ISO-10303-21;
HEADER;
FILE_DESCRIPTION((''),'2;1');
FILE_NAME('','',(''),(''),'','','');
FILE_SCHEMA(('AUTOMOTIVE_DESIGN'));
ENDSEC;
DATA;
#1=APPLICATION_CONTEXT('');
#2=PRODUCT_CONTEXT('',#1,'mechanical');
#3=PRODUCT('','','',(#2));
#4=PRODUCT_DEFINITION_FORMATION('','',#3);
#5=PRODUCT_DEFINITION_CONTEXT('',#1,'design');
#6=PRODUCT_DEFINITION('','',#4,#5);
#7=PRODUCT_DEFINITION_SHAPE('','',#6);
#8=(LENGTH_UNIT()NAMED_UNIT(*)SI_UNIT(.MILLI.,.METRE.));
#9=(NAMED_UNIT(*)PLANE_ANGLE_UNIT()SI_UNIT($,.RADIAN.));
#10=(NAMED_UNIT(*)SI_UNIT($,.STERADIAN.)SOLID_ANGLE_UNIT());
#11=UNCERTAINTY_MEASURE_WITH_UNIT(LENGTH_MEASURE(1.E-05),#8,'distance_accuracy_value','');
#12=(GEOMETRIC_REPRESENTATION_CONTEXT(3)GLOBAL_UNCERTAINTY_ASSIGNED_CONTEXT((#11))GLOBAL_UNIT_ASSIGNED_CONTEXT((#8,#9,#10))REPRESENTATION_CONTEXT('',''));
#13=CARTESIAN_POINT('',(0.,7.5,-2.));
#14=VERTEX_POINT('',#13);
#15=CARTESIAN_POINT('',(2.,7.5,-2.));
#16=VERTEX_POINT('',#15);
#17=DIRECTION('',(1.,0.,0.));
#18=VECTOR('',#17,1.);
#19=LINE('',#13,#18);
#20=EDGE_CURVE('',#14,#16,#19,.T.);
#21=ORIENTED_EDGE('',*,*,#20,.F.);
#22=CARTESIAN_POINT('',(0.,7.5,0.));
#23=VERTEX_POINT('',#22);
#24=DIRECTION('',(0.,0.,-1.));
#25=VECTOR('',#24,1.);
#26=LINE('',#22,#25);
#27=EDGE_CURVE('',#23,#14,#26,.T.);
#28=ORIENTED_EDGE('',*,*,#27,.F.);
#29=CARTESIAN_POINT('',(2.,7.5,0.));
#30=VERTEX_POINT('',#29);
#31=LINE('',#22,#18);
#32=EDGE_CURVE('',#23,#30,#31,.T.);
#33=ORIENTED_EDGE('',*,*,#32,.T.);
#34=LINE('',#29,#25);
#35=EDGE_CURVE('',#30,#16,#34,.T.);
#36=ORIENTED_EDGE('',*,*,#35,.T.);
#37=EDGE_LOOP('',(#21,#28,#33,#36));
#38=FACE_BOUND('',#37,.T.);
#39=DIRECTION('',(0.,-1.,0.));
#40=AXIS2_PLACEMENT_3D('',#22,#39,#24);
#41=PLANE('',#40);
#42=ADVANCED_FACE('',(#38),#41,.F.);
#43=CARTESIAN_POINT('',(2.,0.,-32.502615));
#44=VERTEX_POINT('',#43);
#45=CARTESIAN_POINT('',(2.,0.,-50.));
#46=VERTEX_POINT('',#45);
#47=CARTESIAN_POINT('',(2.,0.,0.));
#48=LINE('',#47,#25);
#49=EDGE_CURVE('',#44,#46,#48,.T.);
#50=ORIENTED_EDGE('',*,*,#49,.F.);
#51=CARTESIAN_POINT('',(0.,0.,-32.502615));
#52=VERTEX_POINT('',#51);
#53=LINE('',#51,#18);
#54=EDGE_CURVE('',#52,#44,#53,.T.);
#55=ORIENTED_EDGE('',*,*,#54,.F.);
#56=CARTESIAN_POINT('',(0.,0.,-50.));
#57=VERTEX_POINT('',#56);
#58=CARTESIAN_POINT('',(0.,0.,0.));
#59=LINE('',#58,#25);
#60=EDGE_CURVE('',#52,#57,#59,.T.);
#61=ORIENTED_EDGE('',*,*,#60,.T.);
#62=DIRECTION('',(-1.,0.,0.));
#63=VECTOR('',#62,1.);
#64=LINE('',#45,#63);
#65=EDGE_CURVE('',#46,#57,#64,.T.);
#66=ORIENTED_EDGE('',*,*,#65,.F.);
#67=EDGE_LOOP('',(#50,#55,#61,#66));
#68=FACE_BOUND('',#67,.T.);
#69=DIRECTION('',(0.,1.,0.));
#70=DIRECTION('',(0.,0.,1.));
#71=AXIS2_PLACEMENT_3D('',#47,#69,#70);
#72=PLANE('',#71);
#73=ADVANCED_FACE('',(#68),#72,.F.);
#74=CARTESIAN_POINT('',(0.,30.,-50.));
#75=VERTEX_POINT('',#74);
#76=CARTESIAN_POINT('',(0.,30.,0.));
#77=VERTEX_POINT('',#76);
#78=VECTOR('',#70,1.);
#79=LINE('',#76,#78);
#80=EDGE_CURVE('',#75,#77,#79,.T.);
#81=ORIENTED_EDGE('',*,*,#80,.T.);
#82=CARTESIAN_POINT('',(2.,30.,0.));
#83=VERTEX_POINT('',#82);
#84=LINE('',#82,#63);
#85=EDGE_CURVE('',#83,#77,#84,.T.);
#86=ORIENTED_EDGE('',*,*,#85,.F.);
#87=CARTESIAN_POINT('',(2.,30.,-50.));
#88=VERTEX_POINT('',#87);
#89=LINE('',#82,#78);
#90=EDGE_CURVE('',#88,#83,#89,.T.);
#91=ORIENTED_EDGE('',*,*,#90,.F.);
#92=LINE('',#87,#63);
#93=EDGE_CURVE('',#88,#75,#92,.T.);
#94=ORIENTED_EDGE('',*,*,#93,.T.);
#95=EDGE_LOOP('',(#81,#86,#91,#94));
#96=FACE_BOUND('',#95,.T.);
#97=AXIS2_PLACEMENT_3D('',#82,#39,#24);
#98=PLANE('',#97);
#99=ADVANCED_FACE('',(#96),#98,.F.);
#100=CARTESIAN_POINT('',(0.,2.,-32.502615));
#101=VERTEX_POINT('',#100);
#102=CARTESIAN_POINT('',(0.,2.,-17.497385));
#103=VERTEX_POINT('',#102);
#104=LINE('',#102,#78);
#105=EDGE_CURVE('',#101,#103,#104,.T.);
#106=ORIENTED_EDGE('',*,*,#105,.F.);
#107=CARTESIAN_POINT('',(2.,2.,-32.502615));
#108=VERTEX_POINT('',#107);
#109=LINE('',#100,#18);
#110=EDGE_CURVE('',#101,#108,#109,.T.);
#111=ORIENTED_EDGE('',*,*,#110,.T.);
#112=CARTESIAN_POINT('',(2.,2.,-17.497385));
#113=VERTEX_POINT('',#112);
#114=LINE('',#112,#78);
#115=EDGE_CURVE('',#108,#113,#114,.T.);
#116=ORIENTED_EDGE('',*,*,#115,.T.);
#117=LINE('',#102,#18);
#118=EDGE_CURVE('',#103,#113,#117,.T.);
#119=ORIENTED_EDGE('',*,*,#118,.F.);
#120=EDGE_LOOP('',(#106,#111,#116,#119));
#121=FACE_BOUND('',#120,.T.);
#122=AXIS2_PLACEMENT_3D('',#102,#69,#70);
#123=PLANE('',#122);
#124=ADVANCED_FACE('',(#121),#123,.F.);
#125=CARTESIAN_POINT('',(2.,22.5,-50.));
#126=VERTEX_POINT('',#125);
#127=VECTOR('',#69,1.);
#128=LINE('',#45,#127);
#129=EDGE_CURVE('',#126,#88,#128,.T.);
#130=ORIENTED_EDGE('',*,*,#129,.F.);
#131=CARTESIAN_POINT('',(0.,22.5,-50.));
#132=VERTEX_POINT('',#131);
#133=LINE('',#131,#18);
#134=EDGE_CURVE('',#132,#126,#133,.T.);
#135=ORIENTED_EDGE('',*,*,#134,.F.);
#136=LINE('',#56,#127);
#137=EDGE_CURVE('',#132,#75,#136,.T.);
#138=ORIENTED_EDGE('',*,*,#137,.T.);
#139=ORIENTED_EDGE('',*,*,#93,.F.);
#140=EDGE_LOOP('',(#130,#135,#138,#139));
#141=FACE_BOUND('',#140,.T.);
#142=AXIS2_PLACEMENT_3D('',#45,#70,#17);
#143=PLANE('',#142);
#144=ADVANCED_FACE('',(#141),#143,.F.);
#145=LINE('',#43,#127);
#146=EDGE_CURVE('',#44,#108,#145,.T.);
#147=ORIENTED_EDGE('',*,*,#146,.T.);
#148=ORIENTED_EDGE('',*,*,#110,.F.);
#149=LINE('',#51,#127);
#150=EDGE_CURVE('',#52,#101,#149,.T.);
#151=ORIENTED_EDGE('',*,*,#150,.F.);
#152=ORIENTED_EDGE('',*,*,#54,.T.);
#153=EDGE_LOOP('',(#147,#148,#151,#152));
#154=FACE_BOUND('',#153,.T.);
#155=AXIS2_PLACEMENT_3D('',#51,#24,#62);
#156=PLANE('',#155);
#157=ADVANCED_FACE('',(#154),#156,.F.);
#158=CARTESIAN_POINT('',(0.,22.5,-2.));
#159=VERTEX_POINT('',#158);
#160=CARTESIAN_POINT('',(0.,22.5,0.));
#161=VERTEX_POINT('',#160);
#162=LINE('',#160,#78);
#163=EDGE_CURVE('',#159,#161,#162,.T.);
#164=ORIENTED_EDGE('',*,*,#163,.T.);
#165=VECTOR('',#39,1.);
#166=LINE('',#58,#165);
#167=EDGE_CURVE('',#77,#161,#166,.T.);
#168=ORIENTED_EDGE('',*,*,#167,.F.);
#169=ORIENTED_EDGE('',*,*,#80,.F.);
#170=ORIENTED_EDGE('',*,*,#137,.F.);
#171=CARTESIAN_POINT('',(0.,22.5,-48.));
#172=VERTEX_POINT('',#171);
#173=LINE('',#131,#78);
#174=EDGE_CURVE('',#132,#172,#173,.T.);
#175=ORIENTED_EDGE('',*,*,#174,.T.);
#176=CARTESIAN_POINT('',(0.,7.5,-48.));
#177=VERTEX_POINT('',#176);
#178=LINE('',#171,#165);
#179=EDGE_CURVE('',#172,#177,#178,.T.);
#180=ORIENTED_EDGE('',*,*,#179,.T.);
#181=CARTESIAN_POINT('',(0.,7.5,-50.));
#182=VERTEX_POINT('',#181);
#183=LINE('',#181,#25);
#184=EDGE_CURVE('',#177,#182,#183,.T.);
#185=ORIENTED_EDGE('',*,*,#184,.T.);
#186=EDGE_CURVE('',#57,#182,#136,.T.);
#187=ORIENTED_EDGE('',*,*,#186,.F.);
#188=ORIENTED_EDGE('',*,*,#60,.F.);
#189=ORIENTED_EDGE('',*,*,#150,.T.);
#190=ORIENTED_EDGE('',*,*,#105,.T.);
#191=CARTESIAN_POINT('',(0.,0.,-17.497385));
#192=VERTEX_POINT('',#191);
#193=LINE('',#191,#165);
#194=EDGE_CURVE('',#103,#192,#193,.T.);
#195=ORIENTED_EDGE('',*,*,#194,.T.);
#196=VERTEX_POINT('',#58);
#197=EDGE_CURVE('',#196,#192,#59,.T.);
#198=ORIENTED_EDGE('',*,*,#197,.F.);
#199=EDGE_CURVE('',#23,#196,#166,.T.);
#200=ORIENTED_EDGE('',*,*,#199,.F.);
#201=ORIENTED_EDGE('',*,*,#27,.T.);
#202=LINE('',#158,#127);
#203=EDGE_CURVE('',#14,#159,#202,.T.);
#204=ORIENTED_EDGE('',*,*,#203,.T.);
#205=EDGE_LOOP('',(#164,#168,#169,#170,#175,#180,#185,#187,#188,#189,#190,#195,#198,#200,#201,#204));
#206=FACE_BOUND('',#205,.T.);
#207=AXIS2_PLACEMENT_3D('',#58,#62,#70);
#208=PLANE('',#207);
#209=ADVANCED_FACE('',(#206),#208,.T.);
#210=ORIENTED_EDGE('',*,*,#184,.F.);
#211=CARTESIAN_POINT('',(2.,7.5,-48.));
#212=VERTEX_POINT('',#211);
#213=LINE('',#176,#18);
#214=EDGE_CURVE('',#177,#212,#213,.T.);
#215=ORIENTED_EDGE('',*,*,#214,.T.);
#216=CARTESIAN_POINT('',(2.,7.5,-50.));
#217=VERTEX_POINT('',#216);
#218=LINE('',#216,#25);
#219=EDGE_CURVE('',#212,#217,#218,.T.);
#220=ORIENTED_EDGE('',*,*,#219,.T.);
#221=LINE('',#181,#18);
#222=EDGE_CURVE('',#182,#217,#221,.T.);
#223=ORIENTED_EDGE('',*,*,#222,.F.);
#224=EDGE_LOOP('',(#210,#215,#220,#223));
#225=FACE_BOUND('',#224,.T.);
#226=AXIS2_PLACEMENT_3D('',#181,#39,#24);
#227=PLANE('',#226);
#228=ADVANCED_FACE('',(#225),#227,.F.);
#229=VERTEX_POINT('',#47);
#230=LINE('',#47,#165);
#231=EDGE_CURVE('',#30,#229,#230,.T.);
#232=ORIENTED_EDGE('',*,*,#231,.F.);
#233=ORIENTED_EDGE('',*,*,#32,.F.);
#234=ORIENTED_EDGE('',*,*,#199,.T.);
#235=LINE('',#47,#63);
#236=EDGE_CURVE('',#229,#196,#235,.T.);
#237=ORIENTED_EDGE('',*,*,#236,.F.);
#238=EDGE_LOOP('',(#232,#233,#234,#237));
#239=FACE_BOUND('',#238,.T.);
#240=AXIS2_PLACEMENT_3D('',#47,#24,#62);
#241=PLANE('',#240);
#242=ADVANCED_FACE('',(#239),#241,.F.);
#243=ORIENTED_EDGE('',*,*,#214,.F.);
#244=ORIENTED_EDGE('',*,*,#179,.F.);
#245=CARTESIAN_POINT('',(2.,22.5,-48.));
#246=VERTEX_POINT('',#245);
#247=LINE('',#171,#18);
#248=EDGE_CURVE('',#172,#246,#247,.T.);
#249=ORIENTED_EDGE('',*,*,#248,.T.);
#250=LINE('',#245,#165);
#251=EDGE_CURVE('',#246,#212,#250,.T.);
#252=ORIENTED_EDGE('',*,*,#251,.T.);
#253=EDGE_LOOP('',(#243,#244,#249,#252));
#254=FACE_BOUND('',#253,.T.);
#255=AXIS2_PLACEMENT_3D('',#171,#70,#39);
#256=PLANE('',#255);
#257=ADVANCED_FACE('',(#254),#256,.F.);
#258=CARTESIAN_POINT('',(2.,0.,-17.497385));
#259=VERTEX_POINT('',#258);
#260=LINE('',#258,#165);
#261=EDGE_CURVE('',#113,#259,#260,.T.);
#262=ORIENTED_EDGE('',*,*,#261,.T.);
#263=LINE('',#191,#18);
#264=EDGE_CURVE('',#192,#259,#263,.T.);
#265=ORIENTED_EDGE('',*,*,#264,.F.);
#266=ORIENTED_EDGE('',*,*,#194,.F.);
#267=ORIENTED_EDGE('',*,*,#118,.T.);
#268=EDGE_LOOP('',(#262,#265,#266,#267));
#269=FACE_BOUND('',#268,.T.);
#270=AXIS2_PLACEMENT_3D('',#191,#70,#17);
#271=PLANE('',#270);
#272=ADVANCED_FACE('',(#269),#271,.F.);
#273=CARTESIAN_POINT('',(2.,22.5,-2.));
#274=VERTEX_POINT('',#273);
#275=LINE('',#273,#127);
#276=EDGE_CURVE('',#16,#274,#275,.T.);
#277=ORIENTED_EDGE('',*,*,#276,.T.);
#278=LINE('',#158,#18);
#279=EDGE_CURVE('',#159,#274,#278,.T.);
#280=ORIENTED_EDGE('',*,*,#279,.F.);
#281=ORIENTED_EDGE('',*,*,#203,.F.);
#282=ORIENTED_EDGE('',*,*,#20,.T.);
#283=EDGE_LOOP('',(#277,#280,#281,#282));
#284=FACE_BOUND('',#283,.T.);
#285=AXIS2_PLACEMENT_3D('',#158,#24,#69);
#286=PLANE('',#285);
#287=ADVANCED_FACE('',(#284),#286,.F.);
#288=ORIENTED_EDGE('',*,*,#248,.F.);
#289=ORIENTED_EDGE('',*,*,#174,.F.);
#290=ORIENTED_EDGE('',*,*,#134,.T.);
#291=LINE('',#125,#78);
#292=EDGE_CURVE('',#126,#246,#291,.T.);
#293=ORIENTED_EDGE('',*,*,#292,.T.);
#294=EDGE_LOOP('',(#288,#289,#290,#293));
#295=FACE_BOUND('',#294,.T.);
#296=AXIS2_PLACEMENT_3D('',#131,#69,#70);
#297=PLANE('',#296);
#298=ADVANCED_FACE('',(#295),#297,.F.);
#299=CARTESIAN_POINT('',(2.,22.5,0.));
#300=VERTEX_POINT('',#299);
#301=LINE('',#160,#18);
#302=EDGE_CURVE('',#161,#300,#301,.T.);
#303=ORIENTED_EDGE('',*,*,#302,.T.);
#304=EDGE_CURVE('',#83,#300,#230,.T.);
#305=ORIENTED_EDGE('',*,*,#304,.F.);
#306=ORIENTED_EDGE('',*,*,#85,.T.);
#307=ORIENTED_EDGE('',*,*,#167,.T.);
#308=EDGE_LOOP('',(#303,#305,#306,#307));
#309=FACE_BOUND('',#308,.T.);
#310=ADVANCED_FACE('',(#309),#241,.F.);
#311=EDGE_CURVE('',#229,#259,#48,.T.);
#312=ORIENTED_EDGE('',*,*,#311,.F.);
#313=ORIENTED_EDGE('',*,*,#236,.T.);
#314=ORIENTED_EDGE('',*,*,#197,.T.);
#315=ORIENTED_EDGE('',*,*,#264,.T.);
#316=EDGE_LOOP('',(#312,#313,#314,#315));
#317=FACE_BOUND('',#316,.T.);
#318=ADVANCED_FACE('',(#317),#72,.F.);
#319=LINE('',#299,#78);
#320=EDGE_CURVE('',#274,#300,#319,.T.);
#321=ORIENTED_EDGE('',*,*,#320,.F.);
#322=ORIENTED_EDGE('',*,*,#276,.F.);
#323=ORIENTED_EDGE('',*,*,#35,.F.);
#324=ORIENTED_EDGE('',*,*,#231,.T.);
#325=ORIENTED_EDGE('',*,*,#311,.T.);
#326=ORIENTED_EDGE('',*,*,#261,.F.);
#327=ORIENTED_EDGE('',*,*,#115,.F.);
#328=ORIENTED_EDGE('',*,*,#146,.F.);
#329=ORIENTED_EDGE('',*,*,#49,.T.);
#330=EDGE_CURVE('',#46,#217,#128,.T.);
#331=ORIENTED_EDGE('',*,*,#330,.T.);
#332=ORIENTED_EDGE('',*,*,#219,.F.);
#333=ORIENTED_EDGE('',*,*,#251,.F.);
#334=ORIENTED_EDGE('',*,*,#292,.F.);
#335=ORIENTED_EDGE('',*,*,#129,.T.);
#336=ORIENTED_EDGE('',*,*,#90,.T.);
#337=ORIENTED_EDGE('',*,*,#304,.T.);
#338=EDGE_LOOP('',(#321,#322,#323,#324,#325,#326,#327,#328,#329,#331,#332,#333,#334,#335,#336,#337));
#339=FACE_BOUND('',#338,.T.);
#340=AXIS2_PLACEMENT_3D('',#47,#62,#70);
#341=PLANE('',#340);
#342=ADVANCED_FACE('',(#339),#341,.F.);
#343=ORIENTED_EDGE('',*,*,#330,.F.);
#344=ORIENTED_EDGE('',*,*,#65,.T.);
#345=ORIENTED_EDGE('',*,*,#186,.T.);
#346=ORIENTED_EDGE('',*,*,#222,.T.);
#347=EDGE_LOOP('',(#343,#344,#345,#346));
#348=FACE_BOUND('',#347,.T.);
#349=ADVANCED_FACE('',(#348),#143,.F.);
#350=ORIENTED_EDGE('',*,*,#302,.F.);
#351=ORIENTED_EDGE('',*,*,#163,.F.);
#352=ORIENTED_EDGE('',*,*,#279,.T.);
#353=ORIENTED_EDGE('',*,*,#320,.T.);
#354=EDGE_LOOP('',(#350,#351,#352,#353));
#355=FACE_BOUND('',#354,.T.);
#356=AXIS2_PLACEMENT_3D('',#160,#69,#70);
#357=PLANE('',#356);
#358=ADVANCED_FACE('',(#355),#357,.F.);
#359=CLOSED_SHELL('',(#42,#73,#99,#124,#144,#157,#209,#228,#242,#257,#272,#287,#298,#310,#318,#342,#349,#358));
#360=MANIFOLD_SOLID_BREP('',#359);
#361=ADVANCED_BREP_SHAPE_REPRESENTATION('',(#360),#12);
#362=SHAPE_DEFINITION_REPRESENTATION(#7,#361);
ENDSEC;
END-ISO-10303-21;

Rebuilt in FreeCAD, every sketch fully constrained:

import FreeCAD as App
import Part
import Sketcher
from FreeCAD import Vector
Q = App.Units.Quantity

doc = App.newDocument("Part")
body = doc.addObject("PartDesign::Body", "Body")

# Sketch on YZ plane
sketch1 = body.newObject("Sketcher::SketchObject", "Sketch")
sketch1.AttachmentSupport = (doc.getObject("YZ_Plane"), [""])
sketch1.MapMode = "FlatFace"
sketch1.addGeometry([
    Part.LineSegment(Vector(30, 0, 0), Vector(0, 0, 0)),
    Part.LineSegment(Vector(0, 0, 0), Vector(0, -50, 0)),
    Part.LineSegment(Vector(0, -50, 0), Vector(30, -50, 0)),
    Part.LineSegment(Vector(30, -50, 0), Vector(30, 0, 0)),
], False)
sketch1.addConstraint([
    Sketcher.Constraint("Coincident", 0, 2, 1, 1),
    Sketcher.Constraint("Coincident", 1, 2, 2, 1),
    Sketcher.Constraint("Coincident", 2, 2, 3, 1),
    Sketcher.Constraint("Coincident", 3, 2, 0, 1),
    Sketcher.Constraint("Horizontal", 0),
    Sketcher.Constraint("Vertical", 1),
    Sketcher.Constraint("Horizontal", 2),
    Sketcher.Constraint("Vertical", 3),
    Sketcher.Constraint("Coincident", 0, 2, -1, 1),
    Sketcher.Constraint("DistanceX", 0, 2, 0, 1, Q("30 mm")),
    Sketcher.Constraint("DistanceY", 1, 2, 1, 1, Q("50 mm")),
])
pad1 = body.newObject("PartDesign::Pad", "Pad")
pad1.Profile = sketch1
pad1.Length = 2

# Sketch on YZ plane
sketch2 = body.newObject("Sketcher::SketchObject", "Sketch001")
sketch2.AttachmentSupport = (doc.getObject("YZ_Plane"), [""])
sketch2.MapMode = "FlatFace"
sketch2.AttachmentOffset = App.Placement(Vector(0, 0, 2), App.Rotation())
sketch2.addGeometry([
    Part.LineSegment(Vector(22.5, 0, 0), Vector(7.5, 0, 0)),  # 0
    Part.LineSegment(Vector(7.5, 0, 0), Vector(7.5, -2, 0)),  # 1
    Part.LineSegment(Vector(7.5, -2, 0), Vector(22.5, -2, 0)),  # 2
    Part.LineSegment(Vector(22.5, -2, 0), Vector(22.5, 0, 0)),  # 3
    Part.LineSegment(Vector(22.5, -48, 0), Vector(7.5, -48, 0)),  # 4
    Part.LineSegment(Vector(7.5, -48, 0), Vector(7.5, -50, 0)),  # 5
    Part.LineSegment(Vector(7.5, -50, 0), Vector(22.5, -50, 0)),  # 6
    Part.LineSegment(Vector(22.5, -50, 0), Vector(22.5, -48, 0)),  # 7
], False)
sketch2.addConstraint([
    Sketcher.Constraint("Coincident", 0, 2, 1, 1),
    Sketcher.Constraint("Coincident", 1, 2, 2, 1),
    Sketcher.Constraint("Coincident", 2, 2, 3, 1),
    Sketcher.Constraint("Coincident", 3, 2, 0, 1),
    Sketcher.Constraint("Coincident", 4, 2, 5, 1),
    Sketcher.Constraint("Coincident", 5, 2, 6, 1),
    Sketcher.Constraint("Coincident", 6, 2, 7, 1),
    Sketcher.Constraint("Coincident", 7, 2, 4, 1),
    Sketcher.Constraint("Horizontal", 0),
    Sketcher.Constraint("Vertical", 1),
    Sketcher.Constraint("Horizontal", 2),
    Sketcher.Constraint("Vertical", 3),
    Sketcher.Constraint("Horizontal", 4),
    Sketcher.Constraint("Vertical", 5),
    Sketcher.Constraint("Horizontal", 6),
    Sketcher.Constraint("Vertical", 7),
    Sketcher.Constraint("PointOnObject", 0, 2, -1),
    Sketcher.Constraint("Vertical", 1, 2, 4, 2),
    Sketcher.Constraint("Vertical", 3, 2, 6, 2),
    Sketcher.Constraint("Equal", 3, 5),
    Sketcher.Constraint("DistanceX", 0, 2, 0, 1, Q("15 mm")),
    Sketcher.Constraint("DistanceY", 1, 2, 1, 1, Q("2 mm")),
    Sketcher.Constraint("DistanceY", 4, 2, -1, 1, Q("48 mm")),
    Sketcher.Constraint("DistanceX", -1, 1, 0, 2, Q("7.5 mm")),
])
pocket1 = body.newObject("PartDesign::Pocket", "Pocket")
pocket1.Profile = sketch2
pocket1.Length = 2

# Sketch on YZ plane
sketch3 = body.newObject("Sketcher::SketchObject", "Sketch002")
sketch3.AttachmentSupport = (doc.getObject("YZ_Plane"), [""])
sketch3.MapMode = "FlatFace"
sketch3.AttachmentOffset = App.Placement(Vector(0, 0, 2), App.Rotation())
sketch3.addGeometry([
    Part.LineSegment(Vector(2, -17.5, 0), Vector(0, -17.5, 0)),
    Part.LineSegment(Vector(0, -17.5, 0), Vector(0, -32.5, 0)),
    Part.LineSegment(Vector(0, -32.5, 0), Vector(2, -32.5, 0)),
    Part.LineSegment(Vector(2, -32.5, 0), Vector(2, -17.5, 0)),
], False)
sketch3.addConstraint([
    Sketcher.Constraint("Coincident", 0, 2, 1, 1),
    Sketcher.Constraint("Coincident", 1, 2, 2, 1),
    Sketcher.Constraint("Coincident", 2, 2, 3, 1),
    Sketcher.Constraint("Coincident", 3, 2, 0, 1),
    Sketcher.Constraint("Horizontal", 0),
    Sketcher.Constraint("Vertical", 1),
    Sketcher.Constraint("Horizontal", 2),
    Sketcher.Constraint("Vertical", 3),
    Sketcher.Constraint("PointOnObject", 0, 2, -2),
    Sketcher.Constraint("DistanceX", 0, 2, 0, 1, Q("2 mm")),
    Sketcher.Constraint("DistanceY", 1, 2, 1, 1, Q("15.00523 mm")),
    Sketcher.Constraint("DistanceY", 0, 2, -1, 1, Q("17.497385 mm")),
])
pocket2 = body.newObject("PartDesign::Pocket", "Pocket001")
pocket2.Profile = sketch3
pocket2.Length = 2

doc.recompute()
